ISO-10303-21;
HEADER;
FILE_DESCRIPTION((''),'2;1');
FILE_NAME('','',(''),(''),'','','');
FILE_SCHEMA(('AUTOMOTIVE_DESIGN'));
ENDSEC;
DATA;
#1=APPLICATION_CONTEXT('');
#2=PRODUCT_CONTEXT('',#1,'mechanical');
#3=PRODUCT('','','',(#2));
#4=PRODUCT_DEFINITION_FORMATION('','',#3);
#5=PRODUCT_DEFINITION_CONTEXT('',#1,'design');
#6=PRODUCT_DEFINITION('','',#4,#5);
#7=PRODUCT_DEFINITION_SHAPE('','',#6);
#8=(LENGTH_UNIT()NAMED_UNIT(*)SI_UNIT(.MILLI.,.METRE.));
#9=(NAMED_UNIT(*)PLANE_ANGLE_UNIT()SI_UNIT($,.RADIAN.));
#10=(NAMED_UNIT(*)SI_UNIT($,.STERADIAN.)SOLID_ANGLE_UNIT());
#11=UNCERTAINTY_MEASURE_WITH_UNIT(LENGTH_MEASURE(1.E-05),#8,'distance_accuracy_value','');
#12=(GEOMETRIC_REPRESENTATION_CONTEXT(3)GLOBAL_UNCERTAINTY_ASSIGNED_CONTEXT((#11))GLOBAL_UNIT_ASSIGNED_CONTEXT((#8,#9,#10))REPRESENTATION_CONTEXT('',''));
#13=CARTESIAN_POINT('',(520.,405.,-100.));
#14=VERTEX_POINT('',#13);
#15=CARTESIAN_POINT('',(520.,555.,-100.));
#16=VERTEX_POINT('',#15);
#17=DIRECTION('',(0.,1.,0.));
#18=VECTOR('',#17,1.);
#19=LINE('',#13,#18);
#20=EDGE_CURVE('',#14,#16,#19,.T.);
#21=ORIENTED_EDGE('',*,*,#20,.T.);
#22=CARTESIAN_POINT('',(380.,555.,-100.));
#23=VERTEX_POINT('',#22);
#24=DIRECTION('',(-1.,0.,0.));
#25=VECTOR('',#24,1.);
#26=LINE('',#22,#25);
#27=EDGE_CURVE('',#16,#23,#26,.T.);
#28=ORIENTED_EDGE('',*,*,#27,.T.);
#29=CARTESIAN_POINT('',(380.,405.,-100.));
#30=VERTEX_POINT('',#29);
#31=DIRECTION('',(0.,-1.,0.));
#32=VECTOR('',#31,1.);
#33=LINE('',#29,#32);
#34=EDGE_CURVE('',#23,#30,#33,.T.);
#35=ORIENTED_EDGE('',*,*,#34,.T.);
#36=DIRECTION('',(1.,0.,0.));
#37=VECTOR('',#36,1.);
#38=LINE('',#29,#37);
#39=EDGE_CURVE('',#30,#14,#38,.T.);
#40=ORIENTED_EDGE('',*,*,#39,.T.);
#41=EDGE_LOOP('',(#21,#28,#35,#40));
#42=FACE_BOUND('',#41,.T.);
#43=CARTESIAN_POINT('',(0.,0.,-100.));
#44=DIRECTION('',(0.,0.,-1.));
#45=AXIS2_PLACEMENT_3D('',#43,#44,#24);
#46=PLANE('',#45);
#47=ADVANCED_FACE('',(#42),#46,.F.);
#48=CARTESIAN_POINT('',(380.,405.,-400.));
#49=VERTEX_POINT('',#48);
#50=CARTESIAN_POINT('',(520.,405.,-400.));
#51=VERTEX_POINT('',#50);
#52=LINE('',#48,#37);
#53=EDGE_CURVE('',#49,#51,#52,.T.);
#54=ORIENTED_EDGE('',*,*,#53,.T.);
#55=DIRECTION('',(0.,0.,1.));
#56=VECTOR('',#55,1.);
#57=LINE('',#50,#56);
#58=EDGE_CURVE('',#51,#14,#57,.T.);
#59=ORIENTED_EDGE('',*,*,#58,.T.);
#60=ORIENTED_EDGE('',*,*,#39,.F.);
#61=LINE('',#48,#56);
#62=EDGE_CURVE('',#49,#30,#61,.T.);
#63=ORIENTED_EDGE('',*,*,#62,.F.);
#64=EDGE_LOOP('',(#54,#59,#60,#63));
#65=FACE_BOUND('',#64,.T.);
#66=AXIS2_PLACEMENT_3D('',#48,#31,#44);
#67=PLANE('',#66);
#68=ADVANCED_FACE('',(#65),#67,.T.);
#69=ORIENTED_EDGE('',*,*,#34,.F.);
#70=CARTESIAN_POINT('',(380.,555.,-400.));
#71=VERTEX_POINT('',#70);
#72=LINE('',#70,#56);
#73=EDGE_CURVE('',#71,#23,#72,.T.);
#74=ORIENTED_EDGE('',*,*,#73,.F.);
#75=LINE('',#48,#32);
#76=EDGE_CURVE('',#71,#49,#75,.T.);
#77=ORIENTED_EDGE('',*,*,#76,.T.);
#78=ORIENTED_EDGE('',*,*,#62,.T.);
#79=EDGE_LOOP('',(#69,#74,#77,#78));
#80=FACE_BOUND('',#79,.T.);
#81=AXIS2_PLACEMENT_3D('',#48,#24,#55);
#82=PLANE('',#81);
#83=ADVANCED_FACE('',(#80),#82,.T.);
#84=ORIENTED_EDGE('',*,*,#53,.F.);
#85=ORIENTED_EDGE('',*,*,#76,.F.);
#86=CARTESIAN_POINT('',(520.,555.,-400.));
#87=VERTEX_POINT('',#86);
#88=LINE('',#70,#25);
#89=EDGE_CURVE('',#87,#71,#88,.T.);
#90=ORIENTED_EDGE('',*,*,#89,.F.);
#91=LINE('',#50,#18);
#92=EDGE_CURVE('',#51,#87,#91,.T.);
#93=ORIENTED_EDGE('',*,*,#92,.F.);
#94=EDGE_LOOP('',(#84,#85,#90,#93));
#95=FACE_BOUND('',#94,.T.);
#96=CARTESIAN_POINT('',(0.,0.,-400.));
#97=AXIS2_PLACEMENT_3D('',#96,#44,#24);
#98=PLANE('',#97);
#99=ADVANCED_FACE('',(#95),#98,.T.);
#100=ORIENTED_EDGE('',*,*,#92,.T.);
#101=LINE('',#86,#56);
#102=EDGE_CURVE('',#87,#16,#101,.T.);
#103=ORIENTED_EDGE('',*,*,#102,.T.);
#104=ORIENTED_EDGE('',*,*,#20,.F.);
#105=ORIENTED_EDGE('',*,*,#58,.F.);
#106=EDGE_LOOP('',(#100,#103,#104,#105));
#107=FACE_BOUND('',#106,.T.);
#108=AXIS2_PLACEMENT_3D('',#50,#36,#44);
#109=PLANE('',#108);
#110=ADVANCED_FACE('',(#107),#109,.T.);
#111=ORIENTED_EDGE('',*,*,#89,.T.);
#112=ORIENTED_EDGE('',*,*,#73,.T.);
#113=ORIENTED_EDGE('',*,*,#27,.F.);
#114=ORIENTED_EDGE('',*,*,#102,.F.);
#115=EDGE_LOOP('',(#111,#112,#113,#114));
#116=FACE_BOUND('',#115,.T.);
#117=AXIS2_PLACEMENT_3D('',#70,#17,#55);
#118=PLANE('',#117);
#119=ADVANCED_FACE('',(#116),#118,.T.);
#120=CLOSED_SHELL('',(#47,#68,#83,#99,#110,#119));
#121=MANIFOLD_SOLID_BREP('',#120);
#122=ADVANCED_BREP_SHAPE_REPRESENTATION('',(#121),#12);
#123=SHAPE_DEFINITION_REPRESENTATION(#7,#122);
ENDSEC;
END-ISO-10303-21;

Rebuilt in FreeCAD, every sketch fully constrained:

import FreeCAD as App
import Part
import Sketcher

V = App.Vector
Q = App.Units.Quantity

doc = App.newDocument("Part")
params = doc.addObject("Spreadsheet::Sheet", "Params")
for row, (alias, value) in enumerate([
    ("sketch1_width", "140 mm"),
    ("sketch1_height", "150 mm"),
    ("pad1_length", "300 mm"),
], start=1):
    params.set(f"A{row}", alias)
    params.set(f"B{row}", "=" + value)
    params.setAlias(f"B{row}", alias)

body = doc.addObject("PartDesign::Body", "Body")

# Sketch on XY plane
sketch1 = doc.addObject("Sketcher::SketchObject", "Sketch")
body.addObject(sketch1)
sketch1.AttachmentSupport = (doc.XY_Plane, [""])
sketch1.MapMode = "FlatFace"
sketch1.AttachmentOffset = App.Placement(V(0, 0, -100), App.Rotation())
sketch1.addGeometry([
    Part.LineSegment(V(380, 555, 0), V(380, 405, 0)),
    Part.LineSegment(V(380, 405, 0), V(520, 405, 0)),
    Part.LineSegment(V(520, 405, 0), V(520, 555, 0)),
    Part.LineSegment(V(520, 555, 0), V(380, 555, 0)),
], False)
sketch1.addConstraint([
    Sketcher.Constraint("Coincident", 0, 2, 1, 1),
    Sketcher.Constraint("Coincident", 1, 2, 2, 1),
    Sketcher.Constraint("Coincident", 2, 2, 3, 1),
    Sketcher.Constraint("Coincident", 3, 2, 0, 1),
    Sketcher.Constraint("Vertical", 0),
    Sketcher.Constraint("Horizontal", 1),
    Sketcher.Constraint("Vertical", 2),
    Sketcher.Constraint("Horizontal", 3),
    Sketcher.Constraint("DistanceX", 1, 1, 1, 2, Q("140 mm")),
    Sketcher.Constraint("DistanceY", 0, 2, 0, 1, Q("150 mm")),
    Sketcher.Constraint("DistanceX", -1, 1, 0, 2, Q("380 mm")),
    Sketcher.Constraint("DistanceY", -1, 1, 0, 2, Q("405 mm")),
])
sketch1.setExpression("Constraints[8]", "Params.sketch1_width")
sketch1.setExpression("Constraints[9]", "Params.sketch1_height")
pad1 = doc.addObject("PartDesign::Pad", "Pad")
body.addObject(pad1)
pad1.Profile = sketch1
pad1.setExpression("Length", "Params.pad1_length")
pad1.Reversed = True

doc.recompute()
